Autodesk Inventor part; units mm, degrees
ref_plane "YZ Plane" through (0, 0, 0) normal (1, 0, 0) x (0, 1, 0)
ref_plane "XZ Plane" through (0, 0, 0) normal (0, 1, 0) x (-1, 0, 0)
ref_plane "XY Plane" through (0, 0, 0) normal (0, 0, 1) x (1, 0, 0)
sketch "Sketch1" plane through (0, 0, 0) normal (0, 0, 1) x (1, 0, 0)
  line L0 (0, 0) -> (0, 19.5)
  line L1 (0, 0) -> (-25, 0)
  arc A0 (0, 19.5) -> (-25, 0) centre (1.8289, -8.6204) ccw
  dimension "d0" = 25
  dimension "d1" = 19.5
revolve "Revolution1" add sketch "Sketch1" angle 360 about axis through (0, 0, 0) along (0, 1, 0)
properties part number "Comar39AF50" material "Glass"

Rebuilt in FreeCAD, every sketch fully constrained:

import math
import FreeCAD as App
import Part
import Sketcher
from FreeCAD import Vector

doc = App.newDocument("Part")
body = doc.addObject("PartDesign::Body", "Body")

# Sketch on XY plane
sketch1 = doc.addObject("Sketcher::SketchObject", "Sketch")
body.addObject(sketch1)
sketch1.AttachmentSupport = (doc.XY_Plane, [""])
sketch1.MapMode = "FlatFace"
sketch1.addGeometry([
    Part.LineSegment(Vector(-25, 0, 0), Vector(0, 0, 0)),
    Part.LineSegment(Vector(0, 0, 0), Vector(0, 20, 0)),
    Part.ArcOfCircle(Part.Circle(Vector(2, -9, 0), Vector(0, 0, 1), 28), math.radians(94), math.radians(162)),
], False)
sketch1.addConstraint([
    Sketcher.Constraint("Coincident", 0, 2, 1, 1),
    Sketcher.Constraint("Coincident", 1, 2, 2, 1),
    Sketcher.Constraint("Coincident", 2, 2, 0, 1),
    Sketcher.Constraint("Horizontal", 0),
    Sketcher.Constraint("Vertical", 1),
    Sketcher.Constraint("Coincident", 0, 2, -1, 1),
    Sketcher.Constraint("DistanceX", 0, 1, 0, 2, 25.0),
    Sketcher.Constraint("DistanceY", 1, 1, 1, 2, 19.5),
    Sketcher.Constraint("Radius", 2, 28.1798),
])
revolution = doc.addObject("PartDesign::Revolution", "Revolution")
body.addObject(revolution)
revolution.Profile = sketch1
revolution.ReferenceAxis = (sketch1, ["V_Axis"])
revolution.Angle = 360

doc.recompute()
